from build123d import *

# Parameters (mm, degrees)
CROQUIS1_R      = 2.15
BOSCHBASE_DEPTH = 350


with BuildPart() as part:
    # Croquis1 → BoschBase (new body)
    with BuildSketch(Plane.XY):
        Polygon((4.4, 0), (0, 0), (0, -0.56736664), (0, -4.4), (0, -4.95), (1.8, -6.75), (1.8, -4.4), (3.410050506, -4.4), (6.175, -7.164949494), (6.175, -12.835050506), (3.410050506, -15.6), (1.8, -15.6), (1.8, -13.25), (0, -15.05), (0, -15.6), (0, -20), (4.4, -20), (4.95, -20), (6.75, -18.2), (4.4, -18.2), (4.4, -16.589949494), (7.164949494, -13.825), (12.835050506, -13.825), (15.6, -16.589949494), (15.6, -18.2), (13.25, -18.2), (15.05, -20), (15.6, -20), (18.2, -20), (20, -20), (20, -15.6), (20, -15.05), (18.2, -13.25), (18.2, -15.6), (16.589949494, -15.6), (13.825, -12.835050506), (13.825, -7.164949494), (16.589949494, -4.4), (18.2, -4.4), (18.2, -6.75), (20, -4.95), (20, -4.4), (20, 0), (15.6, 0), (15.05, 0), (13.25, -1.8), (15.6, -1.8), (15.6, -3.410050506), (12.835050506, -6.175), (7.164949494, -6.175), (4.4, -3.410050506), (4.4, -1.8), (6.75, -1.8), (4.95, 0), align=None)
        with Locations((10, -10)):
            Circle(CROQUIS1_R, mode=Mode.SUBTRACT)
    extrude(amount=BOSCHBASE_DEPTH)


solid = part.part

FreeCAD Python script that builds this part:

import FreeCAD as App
import Part
import Sketcher
Q = App.Units.Quantity


def add_polygon(sketch, points):
    """Adds a closed chain of lines whose ends are joined by coincident constraints."""
    first, n = sketch.GeometryCount, len(points)
    for a, b in zip(points, points[1:] + points[:1]):
        sketch.addGeometry(Part.LineSegment(App.Vector(*a, 0), App.Vector(*b, 0)), False)
    for i in range(n):
        sketch.addConstraint(Sketcher.Constraint("Coincident", first + i, 2, first + (i + 1) % n, 1))

doc = App.newDocument("Part")
body = doc.addObject("PartDesign::Body", "Body")

# Sketch on XY plane
sketch1 = body.newObject("Sketcher::SketchObject", "Sketch")
sketch1.AttachmentSupport = (doc.getObject("XY_Plane"), [""])
sketch1.MapMode = "FlatFace"
add_polygon(sketch1, [(0, 0), (0, -5), (1.8, -6.8), (1.8, -4.4), (3.4, -4.4), (6.2, -7.2), (6.2, -12.8), (3.4, -15.6), (1.8, -15.6), (1.8, -13.2), (0, -15.1), (0, -20), (5, -20), (6.8, -18.2), (4.4, -18.2), (4.4, -16.6), (7.2, -13.8), (12.8, -13.8), (15.6, -16.6), (15.6, -18.2), (13.2, -18.2), (15.1, -20), (20, -20), (20, -15.1), (18.2, -13.2), (18.2, -15.6), (16.6, -15.6), (13.8, -12.8), (13.8, -7.2), (16.6, -4.4), (18.2, -4.4), (18.2, -6.8), (20, -5), (20, 0), (15.1, 0), (13.2, -1.8), (15.6, -1.8), (15.6, -3.4), (12.8, -6.2), (7.2, -6.2), (4.4, -3.4), (4.4, -1.8), (6.8, -1.8), (5, 0)])  # lines 0-43
sketch1.addGeometry(Part.Circle(App.Vector(10, -10, 0), App.Vector(0, 0, 1), 2.1), False)  # 44
sketch1.addConstraint([
    Sketcher.Constraint("Vertical", 0),
    Sketcher.Constraint("Vertical", 2),
    Sketcher.Constraint("Horizontal", 3),
    Sketcher.Constraint("Vertical", 5),
    Sketcher.Constraint("Horizontal", 7),
    Sketcher.Constraint("Vertical", 8),
    Sketcher.Constraint("Vertical", 10),
    Sketcher.Constraint("Horizontal", 11),
    Sketcher.Constraint("Horizontal", 13),
    Sketcher.Constraint("Vertical", 14),
    Sketcher.Constraint("Horizontal", 16),
    Sketcher.Constraint("Vertical", 18),
    Sketcher.Constraint("Horizontal", 19),
    Sketcher.Constraint("Horizontal", 21),
    Sketcher.Constraint("Vertical", 22),
    Sketcher.Constraint("Vertical", 24),
    Sketcher.Constraint("Horizontal", 25),
    Sketcher.Constraint("Vertical", 27),
    Sketcher.Constraint("Horizontal", 29),
    Sketcher.Constraint("Vertical", 30),
    Sketcher.Constraint("Vertical", 32),
    Sketcher.Constraint("Horizontal", 33),
    Sketcher.Constraint("Horizontal", 35),
    Sketcher.Constraint("Vertical", 36),
    Sketcher.Constraint("Horizontal", 38),
    Sketcher.Constraint("Vertical", 40),
    Sketcher.Constraint("Horizontal", 41),
    Sketcher.Constraint("Horizontal", 43),
    Sketcher.Constraint("Coincident", 43, 2, -1, 1),
    Sketcher.Constraint("PointOnObject", 9, 2, -2),
    Sketcher.Constraint("PointOnObject", 32, 2, -1),
    Sketcher.Constraint("Parallel", 1, 4),
    Sketcher.Constraint("Perpendicular", 4, 6),
    Sketcher.Constraint("Parallel", 6, 9),
    Sketcher.Constraint("Parallel", 9, 12),
    Sketcher.Constraint("Parallel", 12, 15),
    Sketcher.Constraint("Perpendicular", 15, 17),
    Sketcher.Constraint("Parallel", 17, 20),
    Sketcher.Constraint("Parallel", 20, 23),
    Sketcher.Constraint("Parallel", 23, 26),
    Sketcher.Constraint("Perpendicular", 26, 28),
    Sketcher.Constraint("Parallel", 28, 31),
    Sketcher.Constraint("Parallel", 31, 34),
    Sketcher.Constraint("Parallel", 34, 37),
    Sketcher.Constraint("Perpendicular", 37, 39),
    Sketcher.Constraint("Parallel", 39, 42),
    Sketcher.Constraint("Horizontal", 14, 2, 17, 2),
    Sketcher.Constraint("Horizontal", 13, 2, 18, 2),
    Sketcher.Constraint("Horizontal", 11, 2, 20, 2),
    Sketcher.Constraint("Horizontal", 9, 2, 22, 2),
    Sketcher.Constraint("Horizontal", 8, 2, 23, 2),
    Sketcher.Constraint("Horizontal", 7, 2, 24, 2),
    Sketcher.Constraint("Horizontal", 5, 2, 26, 2),
    Sketcher.Constraint("Horizontal", 4, 2, 27, 2),
    Sketcher.Constraint("Horizontal", 3, 2, 28, 2),
    Sketcher.Constraint("Horizontal", 1, 2, 30, 2),
    Sketcher.Constraint("Horizontal", 0, 2, 31, 2),
    Sketcher.Constraint("Horizontal", 36, 2, 39, 2),
    Sketcher.Constraint("Horizontal", 35, 2, 40, 2),
    Sketcher.Constraint("Vertical", 3, 2, 6, 2),
    Sketcher.Constraint("Vertical", 2, 2, 7, 2),
    Sketcher.Constraint("Vertical", 25, 2, 28, 2),
    Sketcher.Constraint("Vertical", 24, 2, 29, 2),
    Sketcher.Constraint("Vertical", 20, 2, 33, 2),
    Sketcher.Constraint("Vertical", 19, 2, 34, 2),
    Sketcher.Constraint("Vertical", 18, 2, 35, 2),
    Sketcher.Constraint("Vertical", 16, 2, 37, 2),
    Sketcher.Constraint("Vertical", 15, 2, 38, 2),
    Sketcher.Constraint("Vertical", 12, 2, 41, 2),
    Sketcher.Constraint("Equal", 13, 19),
    Sketcher.Constraint("Equal", 11, 21),
    Sketcher.Constraint("Equal", 7, 25),
    Sketcher.Constraint("Equal", 43, 0),
    Sketcher.Constraint("Equal", 41, 2),
    Sketcher.Constraint("Equal", 38, 5),
    Sketcher.Constraint("Equal", 2, 8),
    Sketcher.Constraint("Equal", 0, 10),
    Sketcher.Constraint("Equal", 29, 14),
    Sketcher.Constraint("Equal", 18, 36),
    Sketcher.Constraint("Equal", 9, 12),
    Sketcher.Constraint("Equal", 6, 15),
    Sketcher.Constraint("Diameter", 44, Q("4.3 mm")),
    Sketcher.Constraint("DistanceX", -1, 1, 44, 3, Q("10 mm")),
    Sketcher.Constraint("DistanceY", 44, 3, -1, 1, Q("10 mm")),
    Sketcher.Constraint("DistanceY", 10, 2, -1, 1, Q("20 mm")),
    Sketcher.Constraint("DistanceX", 11, 1, 11, 2, Q("4.95 mm")),
    Sketcher.Constraint("DistanceX", 13, 2, 13, 1, Q("2.35 mm")),
    Sketcher.Constraint("DistanceX", -1, 1, 1, 2, Q("1.8 mm")),
    Sketcher.Constraint("DistanceX", 4, 2, 27, 2, Q("7.65 mm")),
    Sketcher.Constraint("DistanceX", 16, 1, 16, 2, Q("5.670101 mm")),
])
pad1 = body.newObject("PartDesign::Pad", "Pad")
pad1.Profile = sketch1
pad1.Length = 350

doc.recompute()
